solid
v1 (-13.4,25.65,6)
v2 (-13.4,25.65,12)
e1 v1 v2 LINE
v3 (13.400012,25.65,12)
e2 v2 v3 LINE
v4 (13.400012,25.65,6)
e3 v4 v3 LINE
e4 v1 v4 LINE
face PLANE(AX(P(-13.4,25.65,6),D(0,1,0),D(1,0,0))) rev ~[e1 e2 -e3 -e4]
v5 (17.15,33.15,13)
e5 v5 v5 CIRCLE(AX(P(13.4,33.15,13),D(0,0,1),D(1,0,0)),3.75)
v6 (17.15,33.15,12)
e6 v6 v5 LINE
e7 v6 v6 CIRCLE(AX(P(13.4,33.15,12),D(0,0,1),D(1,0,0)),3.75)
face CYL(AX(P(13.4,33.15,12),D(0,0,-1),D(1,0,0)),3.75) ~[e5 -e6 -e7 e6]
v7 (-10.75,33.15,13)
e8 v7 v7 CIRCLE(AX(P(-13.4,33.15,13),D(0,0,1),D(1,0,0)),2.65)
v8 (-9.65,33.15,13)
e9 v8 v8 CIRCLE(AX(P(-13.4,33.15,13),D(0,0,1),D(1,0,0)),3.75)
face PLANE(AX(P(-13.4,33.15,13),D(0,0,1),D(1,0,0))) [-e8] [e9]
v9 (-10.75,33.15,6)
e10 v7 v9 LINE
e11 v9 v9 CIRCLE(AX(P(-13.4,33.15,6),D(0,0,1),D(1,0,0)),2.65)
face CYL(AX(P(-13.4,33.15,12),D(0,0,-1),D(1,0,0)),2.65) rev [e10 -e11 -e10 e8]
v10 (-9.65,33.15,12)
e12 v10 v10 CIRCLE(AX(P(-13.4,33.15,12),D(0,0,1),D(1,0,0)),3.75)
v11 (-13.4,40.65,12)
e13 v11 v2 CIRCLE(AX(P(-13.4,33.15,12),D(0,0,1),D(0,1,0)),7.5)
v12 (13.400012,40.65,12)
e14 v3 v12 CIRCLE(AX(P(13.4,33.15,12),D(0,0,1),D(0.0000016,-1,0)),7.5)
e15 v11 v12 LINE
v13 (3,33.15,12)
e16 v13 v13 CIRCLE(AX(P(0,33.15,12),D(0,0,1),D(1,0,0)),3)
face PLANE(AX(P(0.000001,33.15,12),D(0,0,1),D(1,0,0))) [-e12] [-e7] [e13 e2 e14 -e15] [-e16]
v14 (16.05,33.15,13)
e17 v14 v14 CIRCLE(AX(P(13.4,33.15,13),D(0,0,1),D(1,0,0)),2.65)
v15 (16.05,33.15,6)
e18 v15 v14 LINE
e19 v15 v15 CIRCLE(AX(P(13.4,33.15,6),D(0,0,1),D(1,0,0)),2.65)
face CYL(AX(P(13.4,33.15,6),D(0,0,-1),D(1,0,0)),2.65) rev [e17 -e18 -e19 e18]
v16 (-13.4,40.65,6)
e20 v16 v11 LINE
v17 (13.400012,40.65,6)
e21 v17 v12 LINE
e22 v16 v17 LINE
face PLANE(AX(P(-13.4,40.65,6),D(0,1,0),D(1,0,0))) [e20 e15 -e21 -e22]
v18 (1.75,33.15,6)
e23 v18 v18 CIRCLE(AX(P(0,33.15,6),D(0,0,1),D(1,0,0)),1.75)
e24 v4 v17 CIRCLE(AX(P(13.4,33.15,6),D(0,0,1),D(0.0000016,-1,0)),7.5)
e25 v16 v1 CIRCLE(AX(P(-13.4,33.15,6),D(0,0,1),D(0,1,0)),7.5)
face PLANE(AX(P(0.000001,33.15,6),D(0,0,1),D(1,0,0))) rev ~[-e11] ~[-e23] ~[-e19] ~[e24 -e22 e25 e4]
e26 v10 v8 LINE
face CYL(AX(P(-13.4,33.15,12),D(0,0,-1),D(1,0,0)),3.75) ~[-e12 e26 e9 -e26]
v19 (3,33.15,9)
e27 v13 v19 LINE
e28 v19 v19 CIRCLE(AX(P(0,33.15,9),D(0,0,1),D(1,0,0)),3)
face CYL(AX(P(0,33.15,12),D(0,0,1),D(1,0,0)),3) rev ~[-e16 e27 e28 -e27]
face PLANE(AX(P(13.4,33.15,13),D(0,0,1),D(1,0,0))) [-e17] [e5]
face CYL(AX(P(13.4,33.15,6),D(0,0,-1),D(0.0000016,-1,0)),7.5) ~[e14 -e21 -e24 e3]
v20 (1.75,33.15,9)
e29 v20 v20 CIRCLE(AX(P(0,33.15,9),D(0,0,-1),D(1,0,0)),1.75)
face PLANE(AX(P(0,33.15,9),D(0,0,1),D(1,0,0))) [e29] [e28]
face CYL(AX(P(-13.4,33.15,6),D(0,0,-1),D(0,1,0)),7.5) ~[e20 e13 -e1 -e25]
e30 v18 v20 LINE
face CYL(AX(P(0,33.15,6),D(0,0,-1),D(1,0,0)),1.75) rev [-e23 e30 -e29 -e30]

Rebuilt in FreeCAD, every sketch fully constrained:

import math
import FreeCAD as App
import Part
import Sketcher
Q = App.Units.Quantity

doc = App.newDocument("Part")
body = doc.addObject("PartDesign::Body", "Body")

# Sketch on XY plane
sketch1 = body.newObject("Sketcher::SketchObject", "Sketch")
sketch1.AttachmentSupport = (doc.getObject("XY_Plane"), [""])
sketch1.MapMode = "FlatFace"
sketch1.AttachmentOffset = App.Placement(App.Vector(0, 0, 6), App.Rotation())
sketch1.addGeometry(Part.ArcOfCircle(Part.Circle(App.Vector(-13.4, 33.1, 0), App.Vector(0, 0, 1), 7.5), math.radians(90), math.radians(270)), False)
sketch1.addGeometry(Part.LineSegment(App.Vector(-13.4, 25.6, 0), App.Vector(13.4, 25.6, 0)), False)
sketch1.addGeometry(Part.ArcOfCircle(Part.Circle(App.Vector(13.4, 33.1, 0), App.Vector(0, 0, 1), 7.5), math.radians(-90), math.radians(90)), False)
sketch1.addGeometry(Part.LineSegment(App.Vector(13.4, 40.6, 0), App.Vector(-13.4, 40.6, 0)), False)
sketch1.addGeometry(Part.Circle(App.Vector(-13.4, 33.1, 0), App.Vector(0, 0, 1), 2.6), False)
sketch1.addGeometry(Part.Circle(App.Vector(0, 33.1, 0), App.Vector(0, 0, 1), 1.8), False)
sketch1.addGeometry(Part.Circle(App.Vector(13.4, 33.1, 0), App.Vector(0, 0, 1), 2.6), False)
sketch1.addConstraint(Sketcher.Constraint("Tangent", 0, 2, 1, 1))
sketch1.addConstraint(Sketcher.Constraint("Tangent", 1, 2, 2, 1))
sketch1.addConstraint(Sketcher.Constraint("Tangent", 2, 2, 3, 1))
sketch1.addConstraint(Sketcher.Constraint("Tangent", 3, 2, 0, 1))
sketch1.addConstraint(Sketcher.Constraint("Horizontal", 1))
sketch1.addConstraint(Sketcher.Constraint("Horizontal", 3))
sketch1.addConstraint(Sketcher.Constraint("Coincident", 4, 3, 0, 3))
sketch1.addConstraint(Sketcher.Constraint("Coincident", 6, 3, 2, 3))
sketch1.addConstraint(Sketcher.Constraint("Equal", 4, 6))
sketch1.addConstraint(Sketcher.Constraint("PointOnObject", 5, 3, -2))
sketch1.addConstraint(Sketcher.Constraint("Horizontal", 4, 3, 5, 3))
sketch1.addConstraint(Sketcher.Constraint("Diameter", 4, Q("5.3 mm")))
sketch1.addConstraint(Sketcher.Constraint("Diameter", 5, Q("3.5 mm")))
sketch1.addConstraint(Sketcher.Constraint("Radius", 0, Q("7.5 mm")))
sketch1.addConstraint(Sketcher.Constraint("DistanceX", 0, 3, -1, 1, Q("13.4 mm")))
sketch1.addConstraint(Sketcher.Constraint("DistanceX", -1, 1, 2, 3, Q("13.4 mm")))
sketch1.addConstraint(Sketcher.Constraint("DistanceY", -1, 1, 0, 3, Q("33.15 mm")))
pad1 = body.newObject("PartDesign::Pad", "Pad")
pad1.Profile = sketch1
pad1.Length = 6

# Sketch on XY plane
sketch2 = body.newObject("Sketcher::SketchObject", "Sketch001")
sketch2.AttachmentSupport = (doc.getObject("XY_Plane"), [""])
sketch2.MapMode = "FlatFace"
sketch2.AttachmentOffset = App.Placement(App.Vector(0, 0, 12), App.Rotation())
sketch2.addGeometry(Part.Circle(App.Vector(-13.4, 33.1, 0), App.Vector(0, 0, 1), 3.8), False)
sketch2.addGeometry(Part.Circle(App.Vector(-13.4, 33.1, 0), App.Vector(0, 0, 1), 2.6), False)
sketch2.addGeometry(Part.Circle(App.Vector(13.4, 33.1, 0), App.Vector(0, 0, 1), 3.8), False)
sketch2.addGeometry(Part.Circle(App.Vector(13.4, 33.1, 0), App.Vector(0, 0, 1), 2.6), False)
sketch2.addConstraint(Sketcher.Constraint("Coincident", 1, 3, 0, 3))
sketch2.addConstraint(Sketcher.Constraint("Coincident", 3, 3, 2, 3))
sketch2.addConstraint(Sketcher.Constraint("Equal", 0, 2))
sketch2.addConstraint(Sketcher.Constraint("Equal", 1, 3))
sketch2.addConstraint(Sketcher.Constraint("Symmetric", 0, 3, 2, 3, -2))
sketch2.addConstraint(Sketcher.Constraint("Diameter", 0, Q("7.5 mm")))
sketch2.addConstraint(Sketcher.Constraint("Diameter", 1, Q("5.3 mm")))
sketch2.addConstraint(Sketcher.Constraint("DistanceX", 0, 3, -1, 1, Q("13.4 mm")))
sketch2.addConstraint(Sketcher.Constraint("DistanceY", -1, 1, 0, 3, Q("33.15 mm")))
pad2 = body.newObject("PartDesign::Pad", "Pad001")
pad2.Profile = sketch2
pad2.Length = 1

# Sketch on XY plane
sketch3 = body.newObject("Sketcher::SketchObject", "Sketch002")
sketch3.AttachmentSupport = (doc.getObject("XY_Plane"), [""])
sketch3.MapMode = "FlatFace"
sketch3.AttachmentOffset = App.Placement(App.Vector(0, 0, 12), App.Rotation())
sketch3.addGeometry(Part.Circle(App.Vector(0, 33.1, 0), App.Vector(0, 0, 1), 3), False)
sketch3.addConstraint(Sketcher.Constraint("PointOnObject", 0, 3, -2))
sketch3.addConstraint(Sketcher.Constraint("Diameter", 0, Q("6 mm")))
sketch3.addConstraint(Sketcher.Constraint("DistanceY", -1, 1, 0, 3, Q("33.15 mm")))
pocket1 = body.newObject("PartDesign::Pocket", "Pocket")
pocket1.Profile = sketch3
pocket1.Length = 3

doc.recompute()
